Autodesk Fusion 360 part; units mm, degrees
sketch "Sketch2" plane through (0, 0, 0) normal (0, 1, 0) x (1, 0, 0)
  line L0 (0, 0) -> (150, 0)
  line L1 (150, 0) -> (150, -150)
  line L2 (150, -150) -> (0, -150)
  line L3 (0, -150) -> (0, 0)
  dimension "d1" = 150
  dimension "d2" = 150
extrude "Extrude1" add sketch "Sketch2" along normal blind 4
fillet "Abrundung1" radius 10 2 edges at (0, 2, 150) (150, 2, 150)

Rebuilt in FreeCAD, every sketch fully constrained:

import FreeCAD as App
import Part
import Sketcher

V = App.Vector


def edges_at(feature, points):
    """Names of the edges that pass closest to the given points."""
    edges = feature.Shape.Edges
    near = lambda p: min(range(len(edges)), key=lambda i: edges[i].distToShape(Part.Vertex(*p))[0])
    return sorted({f"Edge{near(p) + 1}" for p in points})


def add_polygon(sketch, points):
    """Adds a closed chain of lines whose ends are joined by coincident constraints."""
    first, n = sketch.GeometryCount, len(points)
    for a, b in zip(points, points[1:] + points[:1]):
        sketch.addGeometry(Part.LineSegment(App.Vector(*a, 0), App.Vector(*b, 0)), False)
    for i in range(n):
        sketch.addConstraint(Sketcher.Constraint("Coincident", first + i, 2, first + (i + 1) % n, 1))

doc = App.newDocument("Part")
params = doc.addObject("Spreadsheet::Sheet", "Params")
for row, (alias, value) in enumerate([
    ("sketch1_width", "150 mm"),
    ("pad1_length", "4 mm"),
    ("fillet_radius", "10 mm"),
], start=1):
    params.set(f"A{row}", alias)
    params.set(f"B{row}", "=" + value)
    params.setAlias(f"B{row}", alias)

body = doc.addObject("PartDesign::Body", "Body")

sketch1 = body.newObject("Sketcher::SketchObject", "Sketch")
sketch1.AttachmentSupport = (doc.getObject("XZ_Plane"), [""])
sketch1.MapMode = "FlatFace"
add_polygon(sketch1, [(150, 0), (0, 0), (0, 150), (150, 150)])
sketch1.addConstraint(Sketcher.Constraint("Horizontal", 0))
sketch1.addConstraint(Sketcher.Constraint("Vertical", 1))
sketch1.addConstraint(Sketcher.Constraint("Horizontal", 2))
sketch1.addConstraint(Sketcher.Constraint("Vertical", 3))
sketch1.addConstraint(Sketcher.Constraint("Coincident", 0, 2, -1, 1))
sketch1.addConstraint(Sketcher.Constraint("Equal", 2, 1))
sketch1.addConstraint(Sketcher.Constraint("DistanceX", 0, 2, 0, 1, 150.0))
sketch1.setExpression("Constraints[10]", "Params.sketch1_width")
pad1 = body.newObject("PartDesign::Pad", "Pad")
pad1.Profile = sketch1
pad1.setExpression("Length", "Params.pad1_length")
pad1.Reversed = True
doc.recompute()

fillet = body.newObject("PartDesign::Fillet", "Fillet")
fillet.Base = (pad1, edges_at(pad1, [(0, 2, 150), (150, 2, 150)]))
fillet.setExpression("Radius", "Params.fillet_radius")

doc.recompute()
